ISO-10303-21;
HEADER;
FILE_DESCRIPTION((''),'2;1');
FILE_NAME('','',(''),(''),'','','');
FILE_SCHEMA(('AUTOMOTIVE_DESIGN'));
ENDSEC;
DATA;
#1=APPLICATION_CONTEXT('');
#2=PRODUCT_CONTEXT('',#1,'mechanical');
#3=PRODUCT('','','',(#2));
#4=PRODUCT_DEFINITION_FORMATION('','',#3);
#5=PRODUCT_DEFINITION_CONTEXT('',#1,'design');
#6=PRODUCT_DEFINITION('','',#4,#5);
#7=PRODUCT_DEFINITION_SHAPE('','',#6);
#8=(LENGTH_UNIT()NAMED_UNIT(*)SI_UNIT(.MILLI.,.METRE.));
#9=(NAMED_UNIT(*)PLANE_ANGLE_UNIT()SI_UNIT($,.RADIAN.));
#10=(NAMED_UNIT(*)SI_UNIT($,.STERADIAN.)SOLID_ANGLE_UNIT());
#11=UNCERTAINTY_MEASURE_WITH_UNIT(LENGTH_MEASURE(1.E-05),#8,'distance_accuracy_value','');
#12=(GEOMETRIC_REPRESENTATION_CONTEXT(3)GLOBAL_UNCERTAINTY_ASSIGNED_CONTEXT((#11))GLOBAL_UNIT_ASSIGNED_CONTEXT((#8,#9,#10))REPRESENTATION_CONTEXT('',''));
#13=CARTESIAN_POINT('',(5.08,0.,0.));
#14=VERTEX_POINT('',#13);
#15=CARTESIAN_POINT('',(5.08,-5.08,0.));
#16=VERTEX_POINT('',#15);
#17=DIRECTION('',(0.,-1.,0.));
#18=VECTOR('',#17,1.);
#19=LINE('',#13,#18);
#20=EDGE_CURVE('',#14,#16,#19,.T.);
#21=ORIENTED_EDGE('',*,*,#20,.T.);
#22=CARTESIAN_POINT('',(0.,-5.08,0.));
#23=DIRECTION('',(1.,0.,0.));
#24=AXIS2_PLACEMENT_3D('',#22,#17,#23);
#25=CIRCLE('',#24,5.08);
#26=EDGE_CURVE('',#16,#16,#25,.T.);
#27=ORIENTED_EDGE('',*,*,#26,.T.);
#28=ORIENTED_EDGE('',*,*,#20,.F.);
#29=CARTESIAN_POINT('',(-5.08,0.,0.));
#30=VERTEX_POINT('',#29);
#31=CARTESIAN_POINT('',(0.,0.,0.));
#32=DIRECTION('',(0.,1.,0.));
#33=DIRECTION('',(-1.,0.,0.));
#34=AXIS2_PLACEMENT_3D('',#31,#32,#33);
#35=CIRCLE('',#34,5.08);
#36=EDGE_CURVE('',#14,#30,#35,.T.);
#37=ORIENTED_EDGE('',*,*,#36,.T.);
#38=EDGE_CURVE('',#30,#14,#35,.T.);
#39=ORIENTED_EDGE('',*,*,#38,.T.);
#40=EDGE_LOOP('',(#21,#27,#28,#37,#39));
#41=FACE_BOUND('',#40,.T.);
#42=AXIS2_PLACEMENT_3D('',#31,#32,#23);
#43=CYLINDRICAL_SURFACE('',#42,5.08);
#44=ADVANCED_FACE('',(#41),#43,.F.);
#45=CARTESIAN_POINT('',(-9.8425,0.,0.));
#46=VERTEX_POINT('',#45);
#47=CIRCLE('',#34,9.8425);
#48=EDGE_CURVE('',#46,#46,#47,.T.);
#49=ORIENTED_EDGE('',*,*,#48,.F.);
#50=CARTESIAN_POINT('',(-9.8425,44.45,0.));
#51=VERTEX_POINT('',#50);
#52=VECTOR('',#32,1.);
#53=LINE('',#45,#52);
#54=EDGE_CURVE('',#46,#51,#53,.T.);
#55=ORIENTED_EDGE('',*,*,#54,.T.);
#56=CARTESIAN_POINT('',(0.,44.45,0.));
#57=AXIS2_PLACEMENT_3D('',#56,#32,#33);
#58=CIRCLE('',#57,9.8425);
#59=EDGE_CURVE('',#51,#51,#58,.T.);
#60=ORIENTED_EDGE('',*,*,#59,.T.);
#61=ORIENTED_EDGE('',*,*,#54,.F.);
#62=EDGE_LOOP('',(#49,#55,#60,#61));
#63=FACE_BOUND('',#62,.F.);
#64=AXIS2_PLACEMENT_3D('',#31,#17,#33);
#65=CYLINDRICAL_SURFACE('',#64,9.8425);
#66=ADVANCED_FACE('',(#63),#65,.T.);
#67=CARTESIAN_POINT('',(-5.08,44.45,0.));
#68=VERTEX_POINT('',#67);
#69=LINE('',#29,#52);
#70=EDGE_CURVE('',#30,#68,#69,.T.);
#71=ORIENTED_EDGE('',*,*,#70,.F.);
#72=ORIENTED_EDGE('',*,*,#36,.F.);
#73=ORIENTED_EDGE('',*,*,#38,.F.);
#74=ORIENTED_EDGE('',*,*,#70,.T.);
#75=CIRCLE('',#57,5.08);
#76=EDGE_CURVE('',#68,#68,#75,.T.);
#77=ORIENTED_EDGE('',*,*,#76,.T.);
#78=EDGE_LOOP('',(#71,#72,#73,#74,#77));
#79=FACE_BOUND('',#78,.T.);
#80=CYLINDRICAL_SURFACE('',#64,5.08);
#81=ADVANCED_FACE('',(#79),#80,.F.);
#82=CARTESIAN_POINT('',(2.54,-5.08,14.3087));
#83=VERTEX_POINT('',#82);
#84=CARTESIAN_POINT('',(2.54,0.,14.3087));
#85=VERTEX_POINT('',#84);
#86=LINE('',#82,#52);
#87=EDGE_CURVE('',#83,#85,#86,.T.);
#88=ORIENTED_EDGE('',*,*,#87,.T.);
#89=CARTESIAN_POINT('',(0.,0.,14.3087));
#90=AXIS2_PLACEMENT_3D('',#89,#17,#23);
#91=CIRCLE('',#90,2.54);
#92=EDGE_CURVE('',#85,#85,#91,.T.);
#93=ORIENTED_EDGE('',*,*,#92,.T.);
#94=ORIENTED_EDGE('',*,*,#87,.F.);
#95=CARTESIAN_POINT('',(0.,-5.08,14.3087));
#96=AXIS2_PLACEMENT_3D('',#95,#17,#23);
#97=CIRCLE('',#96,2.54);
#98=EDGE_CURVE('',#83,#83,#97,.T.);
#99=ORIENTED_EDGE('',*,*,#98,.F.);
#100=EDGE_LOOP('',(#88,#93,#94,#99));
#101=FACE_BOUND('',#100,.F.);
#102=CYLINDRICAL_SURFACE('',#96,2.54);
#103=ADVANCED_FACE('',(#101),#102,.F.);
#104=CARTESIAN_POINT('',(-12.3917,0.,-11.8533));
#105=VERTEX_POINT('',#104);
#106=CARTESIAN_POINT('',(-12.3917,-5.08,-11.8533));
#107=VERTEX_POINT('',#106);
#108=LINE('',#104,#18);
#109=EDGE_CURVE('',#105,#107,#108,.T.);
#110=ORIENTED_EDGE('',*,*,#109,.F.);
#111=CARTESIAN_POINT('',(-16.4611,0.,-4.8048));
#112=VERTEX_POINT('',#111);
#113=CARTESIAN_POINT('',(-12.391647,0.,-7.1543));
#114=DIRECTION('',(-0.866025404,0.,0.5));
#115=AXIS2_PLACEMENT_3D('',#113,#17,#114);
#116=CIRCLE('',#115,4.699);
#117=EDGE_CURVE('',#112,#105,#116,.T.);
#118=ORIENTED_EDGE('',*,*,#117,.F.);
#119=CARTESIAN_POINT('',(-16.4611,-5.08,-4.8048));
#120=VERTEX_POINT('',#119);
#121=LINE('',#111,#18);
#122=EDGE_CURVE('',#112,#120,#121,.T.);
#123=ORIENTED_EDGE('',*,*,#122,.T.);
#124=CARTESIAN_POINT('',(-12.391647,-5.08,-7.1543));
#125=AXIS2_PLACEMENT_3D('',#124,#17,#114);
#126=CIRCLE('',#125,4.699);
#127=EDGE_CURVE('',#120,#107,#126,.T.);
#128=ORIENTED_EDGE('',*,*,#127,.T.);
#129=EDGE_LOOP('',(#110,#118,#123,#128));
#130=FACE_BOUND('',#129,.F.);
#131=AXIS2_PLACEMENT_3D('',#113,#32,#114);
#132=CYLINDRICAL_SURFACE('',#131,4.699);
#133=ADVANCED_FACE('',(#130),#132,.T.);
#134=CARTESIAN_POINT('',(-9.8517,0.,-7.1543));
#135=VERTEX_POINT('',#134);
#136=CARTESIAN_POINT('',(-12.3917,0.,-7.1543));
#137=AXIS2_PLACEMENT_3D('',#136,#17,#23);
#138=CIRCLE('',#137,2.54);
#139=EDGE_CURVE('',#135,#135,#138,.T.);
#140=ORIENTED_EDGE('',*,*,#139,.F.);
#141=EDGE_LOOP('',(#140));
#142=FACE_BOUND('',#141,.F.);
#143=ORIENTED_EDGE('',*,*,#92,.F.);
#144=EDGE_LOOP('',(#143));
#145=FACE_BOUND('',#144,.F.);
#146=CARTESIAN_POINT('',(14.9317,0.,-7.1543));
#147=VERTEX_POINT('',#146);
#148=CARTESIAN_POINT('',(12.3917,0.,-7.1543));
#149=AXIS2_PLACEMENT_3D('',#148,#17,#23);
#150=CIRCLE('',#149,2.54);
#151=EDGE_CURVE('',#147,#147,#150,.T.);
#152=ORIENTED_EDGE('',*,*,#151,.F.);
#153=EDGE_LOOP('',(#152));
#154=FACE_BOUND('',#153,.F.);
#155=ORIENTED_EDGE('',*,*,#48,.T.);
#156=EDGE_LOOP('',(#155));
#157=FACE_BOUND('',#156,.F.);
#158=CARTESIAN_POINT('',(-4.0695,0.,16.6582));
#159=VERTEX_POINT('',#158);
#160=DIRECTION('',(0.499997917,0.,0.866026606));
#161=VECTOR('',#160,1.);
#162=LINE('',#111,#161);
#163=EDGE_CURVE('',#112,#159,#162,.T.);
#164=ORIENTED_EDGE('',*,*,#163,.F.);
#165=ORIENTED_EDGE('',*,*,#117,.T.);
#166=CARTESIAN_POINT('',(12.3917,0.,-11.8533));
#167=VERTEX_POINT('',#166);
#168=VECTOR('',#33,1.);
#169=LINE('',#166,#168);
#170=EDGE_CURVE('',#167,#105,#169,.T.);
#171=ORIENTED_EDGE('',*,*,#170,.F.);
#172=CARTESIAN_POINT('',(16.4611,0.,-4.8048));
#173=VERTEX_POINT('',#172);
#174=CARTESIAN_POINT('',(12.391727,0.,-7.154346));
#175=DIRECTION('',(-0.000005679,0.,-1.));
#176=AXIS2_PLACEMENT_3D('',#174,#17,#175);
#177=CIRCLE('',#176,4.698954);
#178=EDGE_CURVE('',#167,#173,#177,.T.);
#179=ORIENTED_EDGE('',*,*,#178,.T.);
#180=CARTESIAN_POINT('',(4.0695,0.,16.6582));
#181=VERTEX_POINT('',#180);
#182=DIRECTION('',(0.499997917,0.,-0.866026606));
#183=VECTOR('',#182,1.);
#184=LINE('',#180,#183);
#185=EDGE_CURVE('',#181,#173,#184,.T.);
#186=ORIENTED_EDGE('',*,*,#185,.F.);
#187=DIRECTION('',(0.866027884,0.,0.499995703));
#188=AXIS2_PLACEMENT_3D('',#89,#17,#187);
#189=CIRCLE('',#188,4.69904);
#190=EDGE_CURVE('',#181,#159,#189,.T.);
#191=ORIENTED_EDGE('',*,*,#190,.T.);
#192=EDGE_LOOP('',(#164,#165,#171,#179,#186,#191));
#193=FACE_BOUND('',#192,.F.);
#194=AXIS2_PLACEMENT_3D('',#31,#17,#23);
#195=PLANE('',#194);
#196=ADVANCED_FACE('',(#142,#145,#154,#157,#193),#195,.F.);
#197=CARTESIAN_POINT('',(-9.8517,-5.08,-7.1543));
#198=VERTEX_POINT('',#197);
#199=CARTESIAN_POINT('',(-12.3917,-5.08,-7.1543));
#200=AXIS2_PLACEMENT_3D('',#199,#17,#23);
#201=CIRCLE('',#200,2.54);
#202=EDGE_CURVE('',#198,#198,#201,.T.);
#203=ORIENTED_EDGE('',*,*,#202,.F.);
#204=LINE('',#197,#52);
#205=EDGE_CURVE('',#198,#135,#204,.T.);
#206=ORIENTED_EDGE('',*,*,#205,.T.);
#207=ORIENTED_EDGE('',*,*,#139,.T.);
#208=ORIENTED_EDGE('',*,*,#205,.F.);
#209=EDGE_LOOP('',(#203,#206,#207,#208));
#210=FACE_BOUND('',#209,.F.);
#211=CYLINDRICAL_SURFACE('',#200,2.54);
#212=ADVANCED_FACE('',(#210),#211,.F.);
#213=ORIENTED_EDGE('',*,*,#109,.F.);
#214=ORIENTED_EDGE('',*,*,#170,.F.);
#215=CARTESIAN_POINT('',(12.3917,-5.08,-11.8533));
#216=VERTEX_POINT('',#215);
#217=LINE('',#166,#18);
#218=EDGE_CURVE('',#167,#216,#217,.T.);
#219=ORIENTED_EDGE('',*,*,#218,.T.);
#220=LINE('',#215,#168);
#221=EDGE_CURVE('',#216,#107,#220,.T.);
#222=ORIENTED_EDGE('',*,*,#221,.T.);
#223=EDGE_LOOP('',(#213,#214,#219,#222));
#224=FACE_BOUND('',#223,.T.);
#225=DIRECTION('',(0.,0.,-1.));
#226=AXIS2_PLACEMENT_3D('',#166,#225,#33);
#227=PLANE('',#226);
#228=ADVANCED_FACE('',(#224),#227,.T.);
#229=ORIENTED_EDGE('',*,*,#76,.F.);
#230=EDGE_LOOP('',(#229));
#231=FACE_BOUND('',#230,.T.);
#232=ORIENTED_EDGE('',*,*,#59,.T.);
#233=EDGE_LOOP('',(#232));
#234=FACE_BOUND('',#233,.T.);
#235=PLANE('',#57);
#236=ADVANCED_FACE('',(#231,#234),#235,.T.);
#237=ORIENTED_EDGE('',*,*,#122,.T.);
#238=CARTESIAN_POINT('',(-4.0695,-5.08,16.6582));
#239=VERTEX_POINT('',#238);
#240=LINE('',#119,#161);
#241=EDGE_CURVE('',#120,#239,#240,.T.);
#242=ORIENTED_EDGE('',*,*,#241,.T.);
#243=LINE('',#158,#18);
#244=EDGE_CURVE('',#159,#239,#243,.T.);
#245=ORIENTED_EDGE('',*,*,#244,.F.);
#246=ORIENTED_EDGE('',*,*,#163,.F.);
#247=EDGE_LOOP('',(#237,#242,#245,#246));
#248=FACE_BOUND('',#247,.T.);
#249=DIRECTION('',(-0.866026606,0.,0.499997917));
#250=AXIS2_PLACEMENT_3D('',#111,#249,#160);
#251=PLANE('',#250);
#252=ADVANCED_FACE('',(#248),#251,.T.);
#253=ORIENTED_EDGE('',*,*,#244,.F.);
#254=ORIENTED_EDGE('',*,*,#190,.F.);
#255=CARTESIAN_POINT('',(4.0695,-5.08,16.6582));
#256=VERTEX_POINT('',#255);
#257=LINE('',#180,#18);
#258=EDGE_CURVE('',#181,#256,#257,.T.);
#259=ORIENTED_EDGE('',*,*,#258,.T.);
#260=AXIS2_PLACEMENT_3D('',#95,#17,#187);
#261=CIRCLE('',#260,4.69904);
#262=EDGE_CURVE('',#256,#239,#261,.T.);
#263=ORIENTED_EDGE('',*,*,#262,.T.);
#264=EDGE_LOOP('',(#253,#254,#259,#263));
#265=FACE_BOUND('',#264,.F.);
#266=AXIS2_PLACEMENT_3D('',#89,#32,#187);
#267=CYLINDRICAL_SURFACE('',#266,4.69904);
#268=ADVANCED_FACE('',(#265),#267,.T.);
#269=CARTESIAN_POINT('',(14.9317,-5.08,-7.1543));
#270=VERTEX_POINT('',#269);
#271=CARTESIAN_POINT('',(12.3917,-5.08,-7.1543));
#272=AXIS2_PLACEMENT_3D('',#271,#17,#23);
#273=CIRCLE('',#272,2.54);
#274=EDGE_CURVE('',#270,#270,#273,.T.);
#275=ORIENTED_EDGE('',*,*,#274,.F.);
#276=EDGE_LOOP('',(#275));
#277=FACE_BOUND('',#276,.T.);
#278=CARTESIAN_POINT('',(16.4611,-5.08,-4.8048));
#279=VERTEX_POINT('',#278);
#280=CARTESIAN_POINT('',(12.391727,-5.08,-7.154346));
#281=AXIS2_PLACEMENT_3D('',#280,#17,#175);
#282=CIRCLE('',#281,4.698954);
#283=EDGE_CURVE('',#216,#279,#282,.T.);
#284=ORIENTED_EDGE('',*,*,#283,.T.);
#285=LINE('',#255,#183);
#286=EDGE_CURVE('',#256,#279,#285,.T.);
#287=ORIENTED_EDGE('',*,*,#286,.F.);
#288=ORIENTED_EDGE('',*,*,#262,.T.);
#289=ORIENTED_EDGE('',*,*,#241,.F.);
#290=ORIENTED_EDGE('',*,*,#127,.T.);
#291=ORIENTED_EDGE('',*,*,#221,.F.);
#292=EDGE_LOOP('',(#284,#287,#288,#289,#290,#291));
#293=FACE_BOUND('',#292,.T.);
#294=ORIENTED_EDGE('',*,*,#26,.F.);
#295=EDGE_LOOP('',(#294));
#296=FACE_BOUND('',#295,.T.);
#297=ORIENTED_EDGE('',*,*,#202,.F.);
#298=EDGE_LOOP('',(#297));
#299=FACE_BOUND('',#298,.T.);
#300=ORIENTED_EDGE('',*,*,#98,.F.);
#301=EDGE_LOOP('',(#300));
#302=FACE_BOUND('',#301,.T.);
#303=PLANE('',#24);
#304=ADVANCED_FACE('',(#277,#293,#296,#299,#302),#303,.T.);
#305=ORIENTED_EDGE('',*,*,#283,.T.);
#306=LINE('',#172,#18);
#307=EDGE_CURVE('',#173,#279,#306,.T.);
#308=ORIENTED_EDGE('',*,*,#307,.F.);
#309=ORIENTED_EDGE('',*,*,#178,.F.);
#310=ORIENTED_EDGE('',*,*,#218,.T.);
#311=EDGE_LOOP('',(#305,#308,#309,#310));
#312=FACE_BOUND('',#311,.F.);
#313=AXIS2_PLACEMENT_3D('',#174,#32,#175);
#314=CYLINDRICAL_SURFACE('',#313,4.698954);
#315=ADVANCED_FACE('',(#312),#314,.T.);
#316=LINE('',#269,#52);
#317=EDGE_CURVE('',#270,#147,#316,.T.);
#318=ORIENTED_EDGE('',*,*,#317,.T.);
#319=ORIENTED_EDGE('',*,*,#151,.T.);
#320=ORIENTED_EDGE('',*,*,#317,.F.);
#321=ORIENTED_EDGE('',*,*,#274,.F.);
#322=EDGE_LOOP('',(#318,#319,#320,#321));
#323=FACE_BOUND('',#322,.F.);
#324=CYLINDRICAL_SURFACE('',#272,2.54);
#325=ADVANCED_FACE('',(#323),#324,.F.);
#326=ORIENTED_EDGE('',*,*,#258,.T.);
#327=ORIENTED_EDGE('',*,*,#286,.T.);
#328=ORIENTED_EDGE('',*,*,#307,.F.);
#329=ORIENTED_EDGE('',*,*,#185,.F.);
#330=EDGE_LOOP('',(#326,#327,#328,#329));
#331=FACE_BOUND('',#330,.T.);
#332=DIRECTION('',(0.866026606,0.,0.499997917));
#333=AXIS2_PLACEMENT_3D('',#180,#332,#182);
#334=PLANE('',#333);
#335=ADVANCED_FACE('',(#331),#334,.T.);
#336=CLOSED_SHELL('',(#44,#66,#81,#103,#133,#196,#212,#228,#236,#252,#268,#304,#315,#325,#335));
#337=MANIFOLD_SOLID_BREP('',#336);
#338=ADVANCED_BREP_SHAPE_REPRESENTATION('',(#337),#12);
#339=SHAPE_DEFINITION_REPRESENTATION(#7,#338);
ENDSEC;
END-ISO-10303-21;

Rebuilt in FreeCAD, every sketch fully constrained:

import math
import FreeCAD as App
import Part
import Sketcher
Q = App.Units.Quantity

doc = App.newDocument("Part")
params = doc.addObject("Spreadsheet::Sheet", "Params")
for row, (alias, value) in enumerate([
    ("sketch1_diameter", "0.4 in"),
    ("sketch1_diameter2", "0.775 in"),
    ("pad1_length", "1.75 in"),
    ("sketch2_radius", "0.185 in"),
    ("sketch2_diameter", "0.4 in"),
    ("pad2_length", "0.2 in"),
    ("sketch3_diameter", "0.2 in"),
    ("pocket1_length", "0.2 in"),
], start=1):
    params.set(f"A{row}", alias)
    params.set(f"B{row}", "=" + value)
    params.setAlias(f"B{row}", alias)

body = doc.addObject("PartDesign::Body", "Body")

sketch1 = doc.addObject("Sketcher::SketchObject", "Sketch")
body.addObject(sketch1)
sketch1.AttachmentSupport = (doc.XZ_Plane, [""])
sketch1.MapMode = "FlatFace"
sketch1.addGeometry(Part.Circle(App.Vector(0, 0, 0), App.Vector(0, 0, 1), 9.8425), False)
sketch1.addGeometry(Part.Circle(App.Vector(0, 0, 0), App.Vector(0, 0, 1), 5.08), False)
sketch1.addConstraint(Sketcher.Constraint("Coincident", 0, 3, -1, 1))
sketch1.addConstraint(Sketcher.Constraint("Coincident", 1, 3, -1, 1))
sketch1.addConstraint(Sketcher.Constraint("Diameter", 1, Q("0.4 in")))
sketch1.addConstraint(Sketcher.Constraint("Diameter", 0, Q("0.775 in")))
sketch1.setExpression("Constraints[2]", "Params.sketch1_diameter")
sketch1.setExpression("Constraints[3]", "Params.sketch1_diameter2")
pad1 = doc.addObject("PartDesign::Pad", "Pad")
body.addObject(pad1)
pad1.Profile = sketch1
pad1.setExpression("Length", "Params.pad1_length")
pad1.Reversed = True

sketch2 = doc.addObject("Sketcher::SketchObject", "Sketch001")
body.addObject(sketch2)
sketch2.AttachmentSupport = (doc.XZ_Plane, [""])
sketch2.MapMode = "FlatFace"
sketch2.addGeometry(Part.LineSegment(App.Vector(16.4611, -4.8048, 0), App.Vector(4.0695, 16.6582, 0)), False)
sketch2.addGeometry(Part.ArcOfCircle(Part.Circle(App.Vector(0, 14.3087, 0), App.Vector(0, 0, 1), 4.69904), math.radians(29.999716), math.radians(150.000284)), False)
sketch2.addGeometry(Part.LineSegment(App.Vector(-4.0695, 16.6582, 0), App.Vector(-16.4611, -4.8048, 0)), False)
sketch2.addGeometry(Part.ArcOfCircle(Part.Circle(App.Vector(-12.3917, -7.1543, 0), App.Vector(0, 0, 1), 4.698954), math.radians(149.999675), math.radians(270)), False)
sketch2.addGeometry(Part.LineSegment(App.Vector(-12.3917, -11.8533, 0), App.Vector(12.3917, -11.8533, 0)), False)
sketch2.addGeometry(Part.ArcOfCircle(Part.Circle(App.Vector(12.3917, -7.1543, 0), App.Vector(0, 0, 1), 4.699), math.radians(-90), math.radians(30.000325)), False)
sketch2.addGeometry(Part.Circle(App.Vector(0, 0, 0), App.Vector(0, 0, 1), 5.08), False)
sketch2.addConstraint(Sketcher.Constraint("Tangent", 0, 2, 1, 1))
sketch2.addConstraint(Sketcher.Constraint("Tangent", 1, 2, 2, 1))
sketch2.addConstraint(Sketcher.Constraint("Tangent", 2, 2, 3, 1))
sketch2.addConstraint(Sketcher.Constraint("Tangent", 3, 2, 4, 1))
sketch2.addConstraint(Sketcher.Constraint("Tangent", 4, 2, 5, 1))
sketch2.addConstraint(Sketcher.Constraint("Tangent", 5, 2, 0, 1))
sketch2.addConstraint(Sketcher.Constraint("Horizontal", 4))
sketch2.addConstraint(Sketcher.Constraint("Coincident", 6, 3, -1, 1))
sketch2.addConstraint(Sketcher.Constraint("Equal", 1, 3))
sketch2.addConstraint(Sketcher.Constraint("Equal", 3, 5))
sketch2.addConstraint(Sketcher.Constraint("Symmetric", 0, 2, 1, 2, -2))
sketch2.addConstraint(Sketcher.Constraint("Radius", 1, Q("0.185 in")))
sketch2.addConstraint(Sketcher.Constraint("Diameter", 6, Q("0.4 in")))
sketch2.addConstraint(Sketcher.Constraint("Angle", 0, Q("119.9999 deg")))
sketch2.addConstraint(Sketcher.Constraint("DistanceY", 3, 2, 1, 3, Q("1.03 in")))
sketch2.addConstraint(Sketcher.Constraint("DistanceY", -1, 1, 1, 3, 14.3087))
sketch2.setExpression("Constraints[11]", "Params.sketch2_radius")
sketch2.setExpression("Constraints[12]", "Params.sketch2_diameter")
pad2 = doc.addObject("PartDesign::Pad", "Pad001")
body.addObject(pad2)
pad2.Profile = sketch2
pad2.setExpression("Length", "Params.pad2_length")

sketch3 = doc.addObject("Sketcher::SketchObject", "Sketch002")
body.addObject(sketch3)
sketch3.AttachmentSupport = (doc.XZ_Plane, [""])
sketch3.MapMode = "FlatFace"
sketch3.AttachmentOffset = App.Placement(App.Vector(0, 0, 0.2 * 25.4), App.Rotation())
sketch3.addGeometry(Part.Circle(App.Vector(0, 14.3087, 0), App.Vector(0, 0, 1), 2.54), False)
sketch3.addGeometry(Part.Circle(App.Vector(12.3917, -7.1543, 0), App.Vector(0, 0, 1), 2.54), False)
sketch3.addGeometry(Part.Circle(App.Vector(-12.3917, -7.1543, 0), App.Vector(0, 0, 1), 2.54), False)
sketch3.addConstraint(Sketcher.Constraint("Equal", 0, 1))
sketch3.addConstraint(Sketcher.Constraint("Equal", 1, 2))
sketch3.addConstraint(Sketcher.Constraint("Symmetric", 1, 3, 2, 3, -2))
sketch3.addConstraint(Sketcher.Constraint("PointOnObject", 0, 3, -2))
sketch3.addConstraint(Sketcher.Constraint("Diameter", 0, Q("0.2 in")))
sketch3.addConstraint(Sketcher.Constraint("DistanceY", 1, 3, 0, 3, Q("0.845 in")))
sketch3.addConstraint(Sketcher.Constraint("DistanceY", -1, 1, 0, 3, 14.3087))
sketch3.addConstraint(Sketcher.Constraint("DistanceX", -1, 1, 1, 3, 12.3917))
sketch3.setExpression("Constraints[4]", "Params.sketch3_diameter")
pocket1 = doc.addObject("PartDesign::Pocket", "Pocket")
body.addObject(pocket1)
pocket1.Profile = sketch3
pocket1.setExpression("Length", "Params.pocket1_length")

doc.recompute()
